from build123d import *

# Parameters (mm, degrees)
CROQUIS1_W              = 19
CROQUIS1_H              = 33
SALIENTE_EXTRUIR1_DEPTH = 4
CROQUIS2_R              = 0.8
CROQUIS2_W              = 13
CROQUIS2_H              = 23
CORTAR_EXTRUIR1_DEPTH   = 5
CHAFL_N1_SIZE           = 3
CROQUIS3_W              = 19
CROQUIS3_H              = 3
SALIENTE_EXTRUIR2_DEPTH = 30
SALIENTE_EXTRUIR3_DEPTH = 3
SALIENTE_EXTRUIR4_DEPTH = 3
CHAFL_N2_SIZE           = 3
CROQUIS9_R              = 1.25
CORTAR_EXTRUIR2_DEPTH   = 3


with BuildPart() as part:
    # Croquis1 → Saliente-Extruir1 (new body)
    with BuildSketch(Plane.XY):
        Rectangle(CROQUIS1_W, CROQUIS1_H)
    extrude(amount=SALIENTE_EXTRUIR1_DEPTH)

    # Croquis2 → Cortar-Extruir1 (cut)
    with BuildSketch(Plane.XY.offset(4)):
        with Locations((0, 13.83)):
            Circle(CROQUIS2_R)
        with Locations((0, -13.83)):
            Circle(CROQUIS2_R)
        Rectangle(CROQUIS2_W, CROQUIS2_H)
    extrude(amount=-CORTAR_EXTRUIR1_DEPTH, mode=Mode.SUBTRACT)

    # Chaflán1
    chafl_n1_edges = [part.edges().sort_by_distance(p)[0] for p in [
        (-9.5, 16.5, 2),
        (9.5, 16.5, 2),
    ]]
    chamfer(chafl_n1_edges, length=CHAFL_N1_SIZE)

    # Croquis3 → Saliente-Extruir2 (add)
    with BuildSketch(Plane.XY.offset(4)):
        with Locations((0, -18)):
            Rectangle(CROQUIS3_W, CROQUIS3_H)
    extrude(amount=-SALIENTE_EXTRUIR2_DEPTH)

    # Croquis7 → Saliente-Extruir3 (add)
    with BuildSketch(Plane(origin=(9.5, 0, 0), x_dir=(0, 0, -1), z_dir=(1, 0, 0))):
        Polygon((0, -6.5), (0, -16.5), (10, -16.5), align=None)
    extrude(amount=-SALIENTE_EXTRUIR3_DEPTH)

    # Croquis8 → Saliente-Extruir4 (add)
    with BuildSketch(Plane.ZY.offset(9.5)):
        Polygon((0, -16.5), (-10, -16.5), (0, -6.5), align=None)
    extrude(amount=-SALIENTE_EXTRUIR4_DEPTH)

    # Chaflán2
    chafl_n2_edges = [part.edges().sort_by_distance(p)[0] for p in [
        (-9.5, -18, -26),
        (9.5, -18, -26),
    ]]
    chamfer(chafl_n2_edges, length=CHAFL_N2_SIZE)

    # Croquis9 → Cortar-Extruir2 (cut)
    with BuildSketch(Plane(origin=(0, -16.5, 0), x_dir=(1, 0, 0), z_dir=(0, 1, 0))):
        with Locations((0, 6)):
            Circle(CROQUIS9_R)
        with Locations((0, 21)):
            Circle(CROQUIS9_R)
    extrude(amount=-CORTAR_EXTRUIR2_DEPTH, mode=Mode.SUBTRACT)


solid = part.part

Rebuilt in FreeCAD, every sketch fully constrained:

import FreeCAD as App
import Part
import Sketcher

V = App.Vector
Q = App.Units.Quantity


def edges_at(feature, points):
    """Names of the edges that pass closest to the given points."""
    edges = feature.Shape.Edges
    near = lambda p: min(range(len(edges)), key=lambda i: edges[i].distToShape(Part.Vertex(*p))[0])
    return sorted({f"Edge{near(p) + 1}" for p in points})

doc = App.newDocument("Part")
body = doc.addObject("PartDesign::Body", "Body")

# Sketch on XY plane
sketch1 = body.newObject("Sketcher::SketchObject", "Sketch")
sketch1.AttachmentSupport = (doc.getObject("XY_Plane"), [""])
sketch1.MapMode = "FlatFace"
sketch1.addGeometry([
    Part.LineSegment(V(-9.5, 16.5, 0), V(-9.5, -16.5, 0)),
    Part.LineSegment(V(-9.5, -16.5, 0), V(9.5, -16.5, 0)),
    Part.LineSegment(V(9.5, -16.5, 0), V(9.5, 16.5, 0)),
    Part.LineSegment(V(9.5, 16.5, 0), V(-9.5, 16.5, 0)),
], False)
sketch1.addConstraint([
    Sketcher.Constraint("Coincident", 0, 2, 1, 1),
    Sketcher.Constraint("Coincident", 1, 2, 2, 1),
    Sketcher.Constraint("Coincident", 2, 2, 3, 1),
    Sketcher.Constraint("Coincident", 3, 2, 0, 1),
    Sketcher.Constraint("Vertical", 0),
    Sketcher.Constraint("Horizontal", 1),
    Sketcher.Constraint("Vertical", 2),
    Sketcher.Constraint("Horizontal", 3),
    Sketcher.Constraint("Symmetric", 0, 2, 2, 2, -1, 1),
    Sketcher.Constraint("DistanceX", 1, 1, 1, 2, Q("19 mm")),
    Sketcher.Constraint("DistanceY", 0, 2, 0, 1, Q("33 mm")),
])
pad1 = body.newObject("PartDesign::Pad", "Pad")
pad1.Profile = sketch1
pad1.Length = 4

# Sketch on XY plane
sketch2 = body.newObject("Sketcher::SketchObject", "Sketch001")
sketch2.AttachmentSupport = (doc.getObject("XY_Plane"), [""])
sketch2.MapMode = "FlatFace"
sketch2.AttachmentOffset = App.Placement(V(0, 0, 4), App.Rotation())
sketch2.addGeometry([
    Part.Circle(V(0, 13.83, 0), V(0, 0, 1), 0.8),  # 0
    Part.Circle(V(0, -13.83, 0), V(0, 0, 1), 0.8),  # 1
    Part.LineSegment(V(-6.5, 11.5, 0), V(-6.5, -11.5, 0)),  # 2
    Part.LineSegment(V(-6.5, -11.5, 0), V(6.5, -11.5, 0)),  # 3
    Part.LineSegment(V(6.5, -11.5, 0), V(6.5, 11.5, 0)),  # 4
    Part.LineSegment(V(6.5, 11.5, 0), V(-6.5, 11.5, 0)),  # 5
], False)
sketch2.addConstraint([
    Sketcher.Constraint("Coincident", 2, 2, 3, 1),
    Sketcher.Constraint("Coincident", 3, 2, 4, 1),
    Sketcher.Constraint("Coincident", 4, 2, 5, 1),
    Sketcher.Constraint("Coincident", 5, 2, 2, 1),
    Sketcher.Constraint("Vertical", 2),
    Sketcher.Constraint("Horizontal", 3),
    Sketcher.Constraint("Vertical", 4),
    Sketcher.Constraint("Horizontal", 5),
    Sketcher.Constraint("Equal", 0, 1),
    Sketcher.Constraint("Symmetric", 0, 3, 1, 3, -1, 1),
    Sketcher.Constraint("Symmetric", 2, 2, 4, 2, -1, 1),
    Sketcher.Constraint("PointOnObject", 0, 3, -2),
    Sketcher.Constraint("Diameter", 0, Q("1.6 mm")),
    Sketcher.Constraint("DistanceX", 3, 1, 3, 2, Q("13 mm")),
    Sketcher.Constraint("DistanceY", 2, 2, 2, 1, Q("23 mm")),
    Sketcher.Constraint("DistanceY", -1, 1, 0, 3, Q("13.83 mm")),
])
pocket1 = body.newObject("PartDesign::Pocket", "Pocket")
pocket1.Profile = sketch2
pocket1.Length = 5
doc.recompute()

chamfer = body.newObject("PartDesign::Chamfer", "Chamfer")
chamfer.Base = (pocket1, edges_at(pocket1, [(-9.5, 16.5, 2), (9.5, 16.5, 2)]))
chamfer.Size = 3

# Sketch on XY plane
sketch3 = body.newObject("Sketcher::SketchObject", "Sketch002")
sketch3.AttachmentSupport = (doc.getObject("XY_Plane"), [""])
sketch3.MapMode = "FlatFace"
sketch3.AttachmentOffset = App.Placement(V(0, 0, 4), App.Rotation())
sketch3.addGeometry([
    Part.LineSegment(V(-9.5, -16.5, 0), V(-9.5, -19.5, 0)),
    Part.LineSegment(V(-9.5, -19.5, 0), V(9.5, -19.5, 0)),
    Part.LineSegment(V(9.5, -19.5, 0), V(9.5, -16.5, 0)),
    Part.LineSegment(V(9.5, -16.5, 0), V(-9.5, -16.5, 0)),
], False)
sketch3.addConstraint([
    Sketcher.Constraint("Coincident", 0, 2, 1, 1),
    Sketcher.Constraint("Coincident", 1, 2, 2, 1),
    Sketcher.Constraint("Coincident", 2, 2, 3, 1),
    Sketcher.Constraint("Coincident", 3, 2, 0, 1),
    Sketcher.Constraint("Vertical", 0),
    Sketcher.Constraint("Horizontal", 1),
    Sketcher.Constraint("Vertical", 2),
    Sketcher.Constraint("Horizontal", 3),
    Sketcher.Constraint("DistanceX", 1, 1, 1, 2, Q("19 mm")),
    Sketcher.Constraint("DistanceY", 0, 2, 0, 1, Q("3 mm")),
    Sketcher.Constraint("DistanceX", 0, 2, -1, 1, Q("9.5 mm")),
    Sketcher.Constraint("DistanceY", 0, 2, -1, 1, Q("19.5 mm")),
])
pad2 = body.newObject("PartDesign::Pad", "Pad001")
pad2.Profile = sketch3
pad2.Length = 30
pad2.Reversed = True

# Sketch on YZ plane
sketch4 = body.newObject("Sketcher::SketchObject", "Sketch003")
sketch4.AttachmentSupport = (doc.getObject("YZ_Plane"), [""])
sketch4.MapMode = "FlatFace"
sketch4.AttachmentOffset = App.Placement(V(0, 0, 9.5), App.Rotation())
sketch4.addGeometry([
    Part.LineSegment(V(-6.5, 0, 0), V(-16.5, 0, 0)),
    Part.LineSegment(V(-16.5, 0, 0), V(-16.5, -10, 0)),
    Part.LineSegment(V(-16.5, -10, 0), V(-6.5, 0, 0)),
], False)
sketch4.addConstraint([
    Sketcher.Constraint("Coincident", 0, 2, 1, 1),
    Sketcher.Constraint("Coincident", 1, 2, 2, 1),
    Sketcher.Constraint("Coincident", 2, 2, 0, 1),
    Sketcher.Constraint("Horizontal", 0),
    Sketcher.Constraint("Vertical", 1),
    Sketcher.Constraint("PointOnObject", 0, 2, -1),
    Sketcher.Constraint("Equal", 0, 1),
    Sketcher.Constraint("DistanceX", 0, 2, 0, 1, Q("10 mm")),
    Sketcher.Constraint("DistanceX", 0, 2, -1, 1, Q("16.5 mm")),
])
pad3 = body.newObject("PartDesign::Pad", "Pad002")
pad3.Profile = sketch4
pad3.Length = 3
pad3.Reversed = True

# Sketch on YZ plane
sketch5 = body.newObject("Sketcher::SketchObject", "Sketch004")
sketch5.AttachmentSupport = (doc.getObject("YZ_Plane"), [""])
sketch5.MapMode = "FlatFace"
sketch5.AttachmentOffset = App.Placement(V(0, 0, -9.5), App.Rotation())
sketch5.addGeometry([
    Part.LineSegment(V(-16.5, -10, 0), V(-16.5, 0, 0)),
    Part.LineSegment(V(-16.5, 0, 0), V(-6.5, 0, 0)),
    Part.LineSegment(V(-6.5, 0, 0), V(-16.5, -10, 0)),
], False)
sketch5.addConstraint([
    Sketcher.Constraint("Coincident", 0, 2, 1, 1),
    Sketcher.Constraint("Coincident", 1, 2, 2, 1),
    Sketcher.Constraint("Coincident", 2, 2, 0, 1),
    Sketcher.Constraint("Vertical", 0),
    Sketcher.Constraint("Horizontal", 1),
    Sketcher.Constraint("PointOnObject", 0, 2, -1),
    Sketcher.Constraint("Equal", 1, 0),
    Sketcher.Constraint("DistanceX", 1, 1, 1, 2, Q("10 mm")),
    Sketcher.Constraint("DistanceX", 0, 2, -1, 1, Q("16.5 mm")),
])
pad4 = body.newObject("PartDesign::Pad", "Pad003")
pad4.Profile = sketch5
pad4.Length = 3
doc.recompute()

chamfer2 = body.newObject("PartDesign::Chamfer", "Chamfer001")
chamfer2.Base = (pad4, edges_at(pad4, [(-9.5, -18, -26), (9.5, -18, -26)]))
chamfer2.Size = 3

# Sketch on XZ plane
sketch6 = body.newObject("Sketcher::SketchObject", "Sketch005")
sketch6.AttachmentSupport = (doc.getObject("XZ_Plane"), [""])
sketch6.MapMode = "FlatFace"
sketch6.AttachmentOffset = App.Placement(V(0, 0, 16.5), App.Rotation())
sketch6.addGeometry([
    Part.Circle(V(0, -6, 0), V(0, 0, 1), 1.25),
    Part.Circle(V(0, -21, 0), V(0, 0, 1), 1.25),
], False)
sketch6.addConstraint([
    Sketcher.Constraint("Equal", 0, 1),
    Sketcher.Constraint("PointOnObject", 0, 3, -2),
    Sketcher.Constraint("PointOnObject", 1, 3, -2),
    Sketcher.Constraint("Diameter", 0, Q("2.5 mm")),
    Sketcher.Constraint("DistanceY", 0, 3, -1, 1, Q("6 mm")),
    Sketcher.Constraint("DistanceY", 1, 3, -1, 1, Q("21 mm")),
])
pocket2 = body.newObject("PartDesign::Pocket", "Pocket001")
pocket2.Profile = sketch6
pocket2.Length = 3
pocket2.Reversed = True

doc.recompute()
